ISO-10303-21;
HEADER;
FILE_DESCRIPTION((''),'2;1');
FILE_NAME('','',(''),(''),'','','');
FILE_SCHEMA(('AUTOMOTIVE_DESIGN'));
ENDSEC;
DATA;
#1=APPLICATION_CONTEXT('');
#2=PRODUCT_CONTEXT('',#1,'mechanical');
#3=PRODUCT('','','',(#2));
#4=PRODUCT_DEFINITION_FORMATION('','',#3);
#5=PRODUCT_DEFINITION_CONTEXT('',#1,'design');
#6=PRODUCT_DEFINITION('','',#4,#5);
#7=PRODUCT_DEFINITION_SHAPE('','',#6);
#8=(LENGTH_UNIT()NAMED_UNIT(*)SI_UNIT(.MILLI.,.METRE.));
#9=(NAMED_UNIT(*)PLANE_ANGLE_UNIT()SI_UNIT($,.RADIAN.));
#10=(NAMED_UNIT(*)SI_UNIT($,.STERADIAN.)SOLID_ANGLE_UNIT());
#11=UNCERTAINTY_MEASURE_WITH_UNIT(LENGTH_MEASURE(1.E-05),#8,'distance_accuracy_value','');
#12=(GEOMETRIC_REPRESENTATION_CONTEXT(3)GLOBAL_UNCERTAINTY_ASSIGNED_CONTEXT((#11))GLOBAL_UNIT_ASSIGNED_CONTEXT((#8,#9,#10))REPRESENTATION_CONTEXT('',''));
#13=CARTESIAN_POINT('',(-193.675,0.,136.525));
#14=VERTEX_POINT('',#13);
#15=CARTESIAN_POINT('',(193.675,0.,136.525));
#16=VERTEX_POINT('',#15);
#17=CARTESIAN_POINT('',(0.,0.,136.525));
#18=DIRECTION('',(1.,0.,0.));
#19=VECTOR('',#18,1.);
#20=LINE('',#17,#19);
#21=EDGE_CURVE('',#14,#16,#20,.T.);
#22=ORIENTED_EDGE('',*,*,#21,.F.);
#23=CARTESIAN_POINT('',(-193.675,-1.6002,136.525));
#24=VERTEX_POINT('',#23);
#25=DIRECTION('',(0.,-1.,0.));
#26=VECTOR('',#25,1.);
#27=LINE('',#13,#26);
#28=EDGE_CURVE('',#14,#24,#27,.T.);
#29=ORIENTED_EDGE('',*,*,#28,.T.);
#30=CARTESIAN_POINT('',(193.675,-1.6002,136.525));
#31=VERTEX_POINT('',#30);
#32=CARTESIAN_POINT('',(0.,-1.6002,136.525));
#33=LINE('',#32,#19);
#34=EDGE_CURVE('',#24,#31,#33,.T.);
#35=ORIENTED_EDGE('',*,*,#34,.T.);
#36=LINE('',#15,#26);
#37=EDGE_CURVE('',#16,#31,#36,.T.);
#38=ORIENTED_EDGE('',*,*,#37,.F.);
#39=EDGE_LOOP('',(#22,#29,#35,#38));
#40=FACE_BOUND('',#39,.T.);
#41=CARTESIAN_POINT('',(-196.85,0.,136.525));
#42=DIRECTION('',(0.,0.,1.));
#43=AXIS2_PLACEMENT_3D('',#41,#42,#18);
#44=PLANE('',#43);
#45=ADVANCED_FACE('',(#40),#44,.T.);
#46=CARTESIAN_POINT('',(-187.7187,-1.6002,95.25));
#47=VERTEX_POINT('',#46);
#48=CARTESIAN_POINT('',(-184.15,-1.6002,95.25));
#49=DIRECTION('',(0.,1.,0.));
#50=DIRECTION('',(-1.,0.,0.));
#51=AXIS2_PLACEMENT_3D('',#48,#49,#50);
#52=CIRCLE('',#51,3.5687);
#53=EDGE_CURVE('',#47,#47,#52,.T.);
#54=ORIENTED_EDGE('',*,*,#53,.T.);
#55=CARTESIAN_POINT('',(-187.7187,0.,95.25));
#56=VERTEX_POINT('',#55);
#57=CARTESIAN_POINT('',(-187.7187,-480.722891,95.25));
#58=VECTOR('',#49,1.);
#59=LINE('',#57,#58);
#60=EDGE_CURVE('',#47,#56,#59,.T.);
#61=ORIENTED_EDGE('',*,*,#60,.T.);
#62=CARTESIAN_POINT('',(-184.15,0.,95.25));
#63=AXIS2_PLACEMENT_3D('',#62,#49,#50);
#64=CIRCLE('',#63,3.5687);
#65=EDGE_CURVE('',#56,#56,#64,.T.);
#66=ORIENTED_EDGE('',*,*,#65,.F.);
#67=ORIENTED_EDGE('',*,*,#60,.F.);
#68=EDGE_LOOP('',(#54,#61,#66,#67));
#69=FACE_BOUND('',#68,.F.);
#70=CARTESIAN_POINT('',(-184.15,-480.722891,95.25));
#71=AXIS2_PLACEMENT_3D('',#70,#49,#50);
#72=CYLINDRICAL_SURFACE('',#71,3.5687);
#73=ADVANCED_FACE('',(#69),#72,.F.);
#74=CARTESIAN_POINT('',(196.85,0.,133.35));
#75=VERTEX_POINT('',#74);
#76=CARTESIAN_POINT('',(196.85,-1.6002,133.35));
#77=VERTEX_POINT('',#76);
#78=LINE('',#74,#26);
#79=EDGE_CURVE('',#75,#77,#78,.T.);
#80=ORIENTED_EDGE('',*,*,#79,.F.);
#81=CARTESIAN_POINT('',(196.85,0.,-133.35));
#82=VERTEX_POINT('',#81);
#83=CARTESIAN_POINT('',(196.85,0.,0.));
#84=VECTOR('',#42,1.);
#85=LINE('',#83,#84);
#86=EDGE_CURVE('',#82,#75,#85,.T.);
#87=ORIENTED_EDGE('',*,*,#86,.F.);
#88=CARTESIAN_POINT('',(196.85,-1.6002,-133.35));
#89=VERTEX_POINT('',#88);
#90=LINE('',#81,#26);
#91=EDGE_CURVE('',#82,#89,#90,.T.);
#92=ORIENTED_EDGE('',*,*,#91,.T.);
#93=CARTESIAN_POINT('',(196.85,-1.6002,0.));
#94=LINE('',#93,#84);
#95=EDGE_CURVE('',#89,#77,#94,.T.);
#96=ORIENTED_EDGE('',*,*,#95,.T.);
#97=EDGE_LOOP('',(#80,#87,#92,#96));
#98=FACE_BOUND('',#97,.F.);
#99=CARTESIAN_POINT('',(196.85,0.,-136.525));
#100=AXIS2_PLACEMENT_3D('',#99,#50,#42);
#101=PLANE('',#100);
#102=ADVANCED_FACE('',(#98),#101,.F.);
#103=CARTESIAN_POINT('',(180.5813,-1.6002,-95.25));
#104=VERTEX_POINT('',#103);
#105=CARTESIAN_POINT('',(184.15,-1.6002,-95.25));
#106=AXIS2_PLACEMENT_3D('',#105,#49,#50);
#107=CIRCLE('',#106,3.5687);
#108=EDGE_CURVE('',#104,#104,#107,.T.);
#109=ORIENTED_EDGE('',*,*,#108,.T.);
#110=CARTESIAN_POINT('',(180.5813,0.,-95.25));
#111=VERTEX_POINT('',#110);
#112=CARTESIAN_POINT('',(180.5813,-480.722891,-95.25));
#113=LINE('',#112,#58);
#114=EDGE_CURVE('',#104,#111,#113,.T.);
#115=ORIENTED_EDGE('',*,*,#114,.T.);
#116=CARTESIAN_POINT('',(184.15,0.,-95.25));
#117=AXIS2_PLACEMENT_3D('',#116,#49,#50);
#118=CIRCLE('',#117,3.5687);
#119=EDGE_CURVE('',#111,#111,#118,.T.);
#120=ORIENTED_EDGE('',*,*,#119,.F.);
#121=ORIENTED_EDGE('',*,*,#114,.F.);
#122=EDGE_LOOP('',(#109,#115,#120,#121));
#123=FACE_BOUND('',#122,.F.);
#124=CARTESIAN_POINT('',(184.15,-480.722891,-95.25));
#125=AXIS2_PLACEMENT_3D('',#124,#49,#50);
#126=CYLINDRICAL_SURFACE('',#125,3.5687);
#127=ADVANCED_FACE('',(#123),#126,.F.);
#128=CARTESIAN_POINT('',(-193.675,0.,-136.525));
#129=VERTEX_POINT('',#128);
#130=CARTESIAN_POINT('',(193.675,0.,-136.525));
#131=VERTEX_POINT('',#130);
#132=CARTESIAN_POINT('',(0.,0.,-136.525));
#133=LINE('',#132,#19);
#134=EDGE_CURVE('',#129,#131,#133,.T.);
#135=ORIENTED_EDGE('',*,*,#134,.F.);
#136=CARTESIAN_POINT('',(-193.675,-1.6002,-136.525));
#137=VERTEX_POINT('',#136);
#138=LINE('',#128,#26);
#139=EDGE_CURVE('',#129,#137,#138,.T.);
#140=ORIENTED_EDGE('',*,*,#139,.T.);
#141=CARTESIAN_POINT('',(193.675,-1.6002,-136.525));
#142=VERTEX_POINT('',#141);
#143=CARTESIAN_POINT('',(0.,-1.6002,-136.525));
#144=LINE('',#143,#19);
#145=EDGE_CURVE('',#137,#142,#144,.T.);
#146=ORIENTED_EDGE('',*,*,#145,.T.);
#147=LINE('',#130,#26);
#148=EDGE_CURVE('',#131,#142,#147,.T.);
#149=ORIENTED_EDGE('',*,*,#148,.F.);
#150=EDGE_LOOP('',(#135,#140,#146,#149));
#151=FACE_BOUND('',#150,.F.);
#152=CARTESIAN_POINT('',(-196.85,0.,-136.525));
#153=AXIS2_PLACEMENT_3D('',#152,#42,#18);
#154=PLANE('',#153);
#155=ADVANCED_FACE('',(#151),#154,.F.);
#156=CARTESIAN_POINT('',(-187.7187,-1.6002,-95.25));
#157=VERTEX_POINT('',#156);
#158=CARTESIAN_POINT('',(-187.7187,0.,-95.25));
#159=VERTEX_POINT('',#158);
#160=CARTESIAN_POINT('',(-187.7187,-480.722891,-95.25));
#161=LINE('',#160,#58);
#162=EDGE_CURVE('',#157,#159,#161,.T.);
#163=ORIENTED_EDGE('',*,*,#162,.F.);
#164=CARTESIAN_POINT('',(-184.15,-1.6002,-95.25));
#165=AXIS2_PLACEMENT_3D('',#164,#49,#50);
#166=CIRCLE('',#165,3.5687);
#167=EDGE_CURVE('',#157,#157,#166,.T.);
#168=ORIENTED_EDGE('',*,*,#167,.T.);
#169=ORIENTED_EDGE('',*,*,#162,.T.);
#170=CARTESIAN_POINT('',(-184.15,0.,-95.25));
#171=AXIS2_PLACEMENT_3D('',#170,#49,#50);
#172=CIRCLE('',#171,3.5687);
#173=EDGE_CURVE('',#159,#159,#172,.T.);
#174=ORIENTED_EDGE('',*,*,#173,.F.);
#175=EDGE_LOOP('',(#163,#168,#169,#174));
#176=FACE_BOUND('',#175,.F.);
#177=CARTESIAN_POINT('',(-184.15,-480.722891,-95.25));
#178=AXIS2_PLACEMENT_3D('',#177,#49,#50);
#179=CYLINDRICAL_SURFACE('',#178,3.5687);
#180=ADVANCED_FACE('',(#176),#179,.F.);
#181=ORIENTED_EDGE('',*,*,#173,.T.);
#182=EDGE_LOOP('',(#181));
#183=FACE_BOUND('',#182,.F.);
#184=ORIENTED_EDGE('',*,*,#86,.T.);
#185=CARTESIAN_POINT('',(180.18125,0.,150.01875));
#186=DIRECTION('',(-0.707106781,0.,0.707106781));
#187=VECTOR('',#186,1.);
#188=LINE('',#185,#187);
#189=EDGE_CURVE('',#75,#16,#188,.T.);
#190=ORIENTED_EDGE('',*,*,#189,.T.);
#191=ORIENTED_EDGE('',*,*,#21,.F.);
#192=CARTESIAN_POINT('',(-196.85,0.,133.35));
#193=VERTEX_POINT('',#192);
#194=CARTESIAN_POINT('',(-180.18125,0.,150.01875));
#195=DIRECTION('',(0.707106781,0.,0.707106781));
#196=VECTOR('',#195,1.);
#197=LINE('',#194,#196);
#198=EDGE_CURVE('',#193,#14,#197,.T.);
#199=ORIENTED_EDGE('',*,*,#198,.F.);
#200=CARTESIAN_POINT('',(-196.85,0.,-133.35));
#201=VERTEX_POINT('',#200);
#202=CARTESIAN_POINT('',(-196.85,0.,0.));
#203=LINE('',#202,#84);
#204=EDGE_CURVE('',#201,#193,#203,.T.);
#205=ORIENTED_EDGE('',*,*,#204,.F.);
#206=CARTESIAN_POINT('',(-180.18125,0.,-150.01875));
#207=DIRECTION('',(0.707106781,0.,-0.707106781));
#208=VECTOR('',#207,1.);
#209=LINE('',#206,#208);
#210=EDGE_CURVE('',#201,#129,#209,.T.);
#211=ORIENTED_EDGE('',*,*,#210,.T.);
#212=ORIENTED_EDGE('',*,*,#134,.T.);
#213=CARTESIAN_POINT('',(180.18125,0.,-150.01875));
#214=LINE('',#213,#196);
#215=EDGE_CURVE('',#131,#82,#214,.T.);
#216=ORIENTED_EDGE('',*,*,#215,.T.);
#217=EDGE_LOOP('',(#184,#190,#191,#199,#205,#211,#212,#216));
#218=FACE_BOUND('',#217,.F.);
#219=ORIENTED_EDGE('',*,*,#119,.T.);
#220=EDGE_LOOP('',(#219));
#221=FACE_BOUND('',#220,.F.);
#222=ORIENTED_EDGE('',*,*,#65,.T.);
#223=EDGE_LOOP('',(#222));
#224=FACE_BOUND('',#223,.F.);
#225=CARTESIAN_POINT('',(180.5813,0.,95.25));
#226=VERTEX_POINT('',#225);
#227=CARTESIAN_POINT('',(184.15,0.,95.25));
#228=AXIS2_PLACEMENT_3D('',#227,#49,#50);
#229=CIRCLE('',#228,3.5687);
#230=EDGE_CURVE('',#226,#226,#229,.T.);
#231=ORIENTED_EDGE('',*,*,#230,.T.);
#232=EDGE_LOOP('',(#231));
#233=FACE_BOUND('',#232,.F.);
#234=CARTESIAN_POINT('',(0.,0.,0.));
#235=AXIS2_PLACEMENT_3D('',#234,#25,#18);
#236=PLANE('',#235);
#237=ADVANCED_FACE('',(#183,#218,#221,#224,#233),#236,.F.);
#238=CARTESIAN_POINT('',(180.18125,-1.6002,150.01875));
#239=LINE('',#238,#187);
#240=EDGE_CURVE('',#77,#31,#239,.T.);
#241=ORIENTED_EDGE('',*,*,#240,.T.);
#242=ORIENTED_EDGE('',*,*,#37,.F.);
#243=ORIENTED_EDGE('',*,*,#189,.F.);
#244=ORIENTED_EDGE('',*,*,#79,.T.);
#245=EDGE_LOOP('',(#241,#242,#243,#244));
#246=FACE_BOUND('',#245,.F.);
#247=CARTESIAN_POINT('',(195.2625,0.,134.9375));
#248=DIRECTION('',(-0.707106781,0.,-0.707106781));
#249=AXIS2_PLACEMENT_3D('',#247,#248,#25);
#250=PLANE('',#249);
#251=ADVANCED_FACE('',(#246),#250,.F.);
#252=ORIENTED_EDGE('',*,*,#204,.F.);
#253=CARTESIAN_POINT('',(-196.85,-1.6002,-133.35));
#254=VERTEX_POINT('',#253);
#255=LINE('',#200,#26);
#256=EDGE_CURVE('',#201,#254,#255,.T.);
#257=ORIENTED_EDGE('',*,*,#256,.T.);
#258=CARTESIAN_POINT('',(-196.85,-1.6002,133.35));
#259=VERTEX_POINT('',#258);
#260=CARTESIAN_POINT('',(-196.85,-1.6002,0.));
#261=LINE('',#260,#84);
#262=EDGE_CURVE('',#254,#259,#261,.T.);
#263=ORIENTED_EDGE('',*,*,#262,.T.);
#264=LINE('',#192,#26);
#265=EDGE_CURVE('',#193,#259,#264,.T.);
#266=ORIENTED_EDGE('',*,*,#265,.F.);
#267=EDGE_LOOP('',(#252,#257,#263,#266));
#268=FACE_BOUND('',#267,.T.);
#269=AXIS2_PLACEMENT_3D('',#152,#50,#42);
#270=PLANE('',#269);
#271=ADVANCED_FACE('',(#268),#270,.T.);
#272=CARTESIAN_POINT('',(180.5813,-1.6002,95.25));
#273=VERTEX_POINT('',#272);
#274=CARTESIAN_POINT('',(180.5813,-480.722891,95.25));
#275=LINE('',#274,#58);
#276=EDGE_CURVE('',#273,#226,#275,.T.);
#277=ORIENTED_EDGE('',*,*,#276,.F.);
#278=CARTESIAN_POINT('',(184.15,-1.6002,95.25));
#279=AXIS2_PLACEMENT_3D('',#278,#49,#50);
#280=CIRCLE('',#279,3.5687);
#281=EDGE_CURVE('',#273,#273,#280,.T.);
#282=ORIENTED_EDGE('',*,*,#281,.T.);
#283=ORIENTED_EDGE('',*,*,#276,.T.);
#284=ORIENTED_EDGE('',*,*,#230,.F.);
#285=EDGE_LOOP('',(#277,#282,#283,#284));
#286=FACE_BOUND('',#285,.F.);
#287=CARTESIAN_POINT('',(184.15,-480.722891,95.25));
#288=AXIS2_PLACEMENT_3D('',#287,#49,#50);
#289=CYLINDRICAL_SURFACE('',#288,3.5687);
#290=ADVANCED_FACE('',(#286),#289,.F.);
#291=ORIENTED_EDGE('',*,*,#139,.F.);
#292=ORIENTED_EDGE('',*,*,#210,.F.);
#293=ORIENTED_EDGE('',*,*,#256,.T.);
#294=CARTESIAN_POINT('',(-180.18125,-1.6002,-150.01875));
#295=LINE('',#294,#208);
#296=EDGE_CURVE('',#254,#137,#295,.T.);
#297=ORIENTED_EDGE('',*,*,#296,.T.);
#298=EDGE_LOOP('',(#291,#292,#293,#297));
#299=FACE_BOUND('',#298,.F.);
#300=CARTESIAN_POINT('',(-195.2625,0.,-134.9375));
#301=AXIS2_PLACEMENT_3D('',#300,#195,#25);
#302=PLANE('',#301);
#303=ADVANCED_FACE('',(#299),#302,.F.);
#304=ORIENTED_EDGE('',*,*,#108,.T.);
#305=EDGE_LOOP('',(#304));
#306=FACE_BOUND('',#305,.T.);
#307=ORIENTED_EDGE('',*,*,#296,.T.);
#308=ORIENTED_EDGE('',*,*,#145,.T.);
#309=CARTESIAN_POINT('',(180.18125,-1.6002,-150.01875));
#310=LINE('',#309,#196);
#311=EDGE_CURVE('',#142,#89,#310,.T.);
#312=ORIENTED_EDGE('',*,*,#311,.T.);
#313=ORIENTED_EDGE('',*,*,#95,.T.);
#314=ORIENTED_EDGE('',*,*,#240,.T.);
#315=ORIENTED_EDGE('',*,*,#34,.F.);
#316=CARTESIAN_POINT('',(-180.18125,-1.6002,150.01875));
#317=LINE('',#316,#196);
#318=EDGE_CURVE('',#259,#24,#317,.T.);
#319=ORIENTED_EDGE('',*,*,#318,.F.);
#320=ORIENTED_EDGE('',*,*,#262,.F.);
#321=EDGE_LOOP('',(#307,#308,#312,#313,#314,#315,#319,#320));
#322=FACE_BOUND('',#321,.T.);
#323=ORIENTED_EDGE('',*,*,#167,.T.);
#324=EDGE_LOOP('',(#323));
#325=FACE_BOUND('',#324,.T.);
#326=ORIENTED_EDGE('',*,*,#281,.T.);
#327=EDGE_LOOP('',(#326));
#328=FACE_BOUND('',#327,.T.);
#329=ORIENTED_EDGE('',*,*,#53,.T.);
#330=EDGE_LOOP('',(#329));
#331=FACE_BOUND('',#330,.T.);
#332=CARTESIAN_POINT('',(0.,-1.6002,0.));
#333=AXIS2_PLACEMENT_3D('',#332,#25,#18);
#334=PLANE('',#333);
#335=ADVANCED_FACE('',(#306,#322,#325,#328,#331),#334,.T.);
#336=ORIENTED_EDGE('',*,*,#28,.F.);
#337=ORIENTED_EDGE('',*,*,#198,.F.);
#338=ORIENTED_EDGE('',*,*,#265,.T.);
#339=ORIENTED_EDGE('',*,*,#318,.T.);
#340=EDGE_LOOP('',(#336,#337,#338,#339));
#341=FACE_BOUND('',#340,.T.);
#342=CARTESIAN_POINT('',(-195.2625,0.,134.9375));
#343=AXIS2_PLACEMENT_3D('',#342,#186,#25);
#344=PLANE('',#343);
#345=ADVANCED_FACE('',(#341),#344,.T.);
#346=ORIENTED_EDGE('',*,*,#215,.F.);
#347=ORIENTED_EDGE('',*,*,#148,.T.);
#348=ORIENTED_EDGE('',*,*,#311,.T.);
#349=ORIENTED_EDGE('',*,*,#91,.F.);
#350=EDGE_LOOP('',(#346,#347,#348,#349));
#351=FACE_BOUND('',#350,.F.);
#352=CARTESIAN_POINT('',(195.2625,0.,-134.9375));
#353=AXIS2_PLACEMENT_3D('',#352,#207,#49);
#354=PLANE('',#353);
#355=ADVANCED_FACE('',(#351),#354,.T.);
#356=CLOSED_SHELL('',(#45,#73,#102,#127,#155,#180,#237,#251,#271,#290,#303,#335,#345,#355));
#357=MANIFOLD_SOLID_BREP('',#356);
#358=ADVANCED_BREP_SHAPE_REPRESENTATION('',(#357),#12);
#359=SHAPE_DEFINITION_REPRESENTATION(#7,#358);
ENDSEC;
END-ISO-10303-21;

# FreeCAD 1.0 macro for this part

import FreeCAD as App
import Part
import Sketcher

V = App.Vector
Q = App.Units.Quantity


def edges_at(feature, points):
    """Names of the edges that pass closest to the given points."""
    edges = feature.Shape.Edges
    near = lambda p: min(range(len(edges)), key=lambda i: edges[i].distToShape(Part.Vertex(*p))[0])
    return sorted({f"Edge{near(p) + 1}" for p in points})


def add_polygon(sketch, points):
    """Adds a closed chain of lines whose ends are joined by coincident constraints."""
    first, n = sketch.GeometryCount, len(points)
    for a, b in zip(points, points[1:] + points[:1]):
        sketch.addGeometry(Part.LineSegment(App.Vector(*a, 0), App.Vector(*b, 0)), False)
    for i in range(n):
        sketch.addConstraint(Sketcher.Constraint("Coincident", first + i, 2, first + (i + 1) % n, 1))

doc = App.newDocument("Part")
body = doc.addObject("PartDesign::Body", "Body")

# Sketch on XZ plane
sketch1 = body.newObject("Sketcher::SketchObject", "Sketch")
sketch1.AttachmentSupport = (doc.getObject("XZ_Plane"), [""])
sketch1.MapMode = "FlatFace"
add_polygon(sketch1, [(-197, 137), (-197, -137), (197, -137), (197, 137)])  # lines 0-3
sketch1.addConstraint(Sketcher.Constraint("Vertical", 0))
sketch1.addConstraint(Sketcher.Constraint("Horizontal", 1))
sketch1.addConstraint(Sketcher.Constraint("Vertical", 2))
sketch1.addConstraint(Sketcher.Constraint("Horizontal", 3))
sketch1.addConstraint(Sketcher.Constraint("Symmetric", 0, 2, 2, 2, -1, 1))
sketch1.addConstraint(Sketcher.Constraint("DistanceX", 1, 1, 1, 2, Q("15.5 in")))
sketch1.addConstraint(Sketcher.Constraint("DistanceY", 0, 2, 0, 1, Q("10.75 in")))
pad1 = body.newObject("PartDesign::Pad", "Pad")
pad1.Profile = sketch1
pad1.Length = Q("0.063 in")
doc.recompute()

chamfer = body.newObject("PartDesign::Chamfer", "Chamfer")
chamfer.Base = (pad1, edges_at(pad1, [
    (-196.85, -0.8, 136.525),
    (-196.85, -0.8, -136.525),
    (196.85, -0.8, -136.525),
    (196.85, -0.8, 136.525),
]))
chamfer.Size = Q("0.125 in")

# Sketch on XZ plane
sketch2 = body.newObject("Sketcher::SketchObject", "Sketch001")
sketch2.AttachmentSupport = (doc.getObject("XZ_Plane"), [""])
sketch2.MapMode = "FlatFace"
sketch2.AttachmentOffset = App.Placement(V(0, 0, 0.063 * 25.4), App.Rotation())
sketch2.addGeometry(Part.Circle(V(-184.2, 95.2, 0), V(0, 0, 1), 3.6), False)
sketch2.addGeometry(Part.Circle(V(184.2, 95.2, 0), V(0, 0, 1), 3.6), False)
sketch2.addGeometry(Part.Circle(V(184.2, -95.2, 0), V(0, 0, 1), 3.6), False)
sketch2.addGeometry(Part.Circle(V(-184.2, -95.2, 0), V(0, 0, 1), 3.6), False)
sketch2.addConstraint(Sketcher.Constraint("Equal", 0, 1))
sketch2.addConstraint(Sketcher.Constraint("Equal", 1, 2))
sketch2.addConstraint(Sketcher.Constraint("Equal", 2, 3))
sketch2.addConstraint(Sketcher.Constraint("Symmetric", 0, 3, 2, 3, -1, 1))
sketch2.addConstraint(Sketcher.Constraint("Symmetric", 1, 3, 3, 3, -1, 1))
sketch2.addConstraint(Sketcher.Constraint("Symmetric", 0, 3, 1, 3, -2))
sketch2.addConstraint(Sketcher.Constraint("Diameter", 0, Q("0.281 in")))
sketch2.addConstraint(Sketcher.Constraint("DistanceX", 0, 3, 1, 3, Q("14.5 in")))
sketch2.addConstraint(Sketcher.Constraint("DistanceY", 2, 3, 1, 3, Q("7.5 in")))
doc.recompute()
hole = body.newObject("PartDesign::Hole", "Hole")
hole.Profile = sketch2
hole.ThreadType = "None"
hole.Diameter = Q("0.281 in")
hole.DepthType = "ThroughAll"

doc.recompute()
